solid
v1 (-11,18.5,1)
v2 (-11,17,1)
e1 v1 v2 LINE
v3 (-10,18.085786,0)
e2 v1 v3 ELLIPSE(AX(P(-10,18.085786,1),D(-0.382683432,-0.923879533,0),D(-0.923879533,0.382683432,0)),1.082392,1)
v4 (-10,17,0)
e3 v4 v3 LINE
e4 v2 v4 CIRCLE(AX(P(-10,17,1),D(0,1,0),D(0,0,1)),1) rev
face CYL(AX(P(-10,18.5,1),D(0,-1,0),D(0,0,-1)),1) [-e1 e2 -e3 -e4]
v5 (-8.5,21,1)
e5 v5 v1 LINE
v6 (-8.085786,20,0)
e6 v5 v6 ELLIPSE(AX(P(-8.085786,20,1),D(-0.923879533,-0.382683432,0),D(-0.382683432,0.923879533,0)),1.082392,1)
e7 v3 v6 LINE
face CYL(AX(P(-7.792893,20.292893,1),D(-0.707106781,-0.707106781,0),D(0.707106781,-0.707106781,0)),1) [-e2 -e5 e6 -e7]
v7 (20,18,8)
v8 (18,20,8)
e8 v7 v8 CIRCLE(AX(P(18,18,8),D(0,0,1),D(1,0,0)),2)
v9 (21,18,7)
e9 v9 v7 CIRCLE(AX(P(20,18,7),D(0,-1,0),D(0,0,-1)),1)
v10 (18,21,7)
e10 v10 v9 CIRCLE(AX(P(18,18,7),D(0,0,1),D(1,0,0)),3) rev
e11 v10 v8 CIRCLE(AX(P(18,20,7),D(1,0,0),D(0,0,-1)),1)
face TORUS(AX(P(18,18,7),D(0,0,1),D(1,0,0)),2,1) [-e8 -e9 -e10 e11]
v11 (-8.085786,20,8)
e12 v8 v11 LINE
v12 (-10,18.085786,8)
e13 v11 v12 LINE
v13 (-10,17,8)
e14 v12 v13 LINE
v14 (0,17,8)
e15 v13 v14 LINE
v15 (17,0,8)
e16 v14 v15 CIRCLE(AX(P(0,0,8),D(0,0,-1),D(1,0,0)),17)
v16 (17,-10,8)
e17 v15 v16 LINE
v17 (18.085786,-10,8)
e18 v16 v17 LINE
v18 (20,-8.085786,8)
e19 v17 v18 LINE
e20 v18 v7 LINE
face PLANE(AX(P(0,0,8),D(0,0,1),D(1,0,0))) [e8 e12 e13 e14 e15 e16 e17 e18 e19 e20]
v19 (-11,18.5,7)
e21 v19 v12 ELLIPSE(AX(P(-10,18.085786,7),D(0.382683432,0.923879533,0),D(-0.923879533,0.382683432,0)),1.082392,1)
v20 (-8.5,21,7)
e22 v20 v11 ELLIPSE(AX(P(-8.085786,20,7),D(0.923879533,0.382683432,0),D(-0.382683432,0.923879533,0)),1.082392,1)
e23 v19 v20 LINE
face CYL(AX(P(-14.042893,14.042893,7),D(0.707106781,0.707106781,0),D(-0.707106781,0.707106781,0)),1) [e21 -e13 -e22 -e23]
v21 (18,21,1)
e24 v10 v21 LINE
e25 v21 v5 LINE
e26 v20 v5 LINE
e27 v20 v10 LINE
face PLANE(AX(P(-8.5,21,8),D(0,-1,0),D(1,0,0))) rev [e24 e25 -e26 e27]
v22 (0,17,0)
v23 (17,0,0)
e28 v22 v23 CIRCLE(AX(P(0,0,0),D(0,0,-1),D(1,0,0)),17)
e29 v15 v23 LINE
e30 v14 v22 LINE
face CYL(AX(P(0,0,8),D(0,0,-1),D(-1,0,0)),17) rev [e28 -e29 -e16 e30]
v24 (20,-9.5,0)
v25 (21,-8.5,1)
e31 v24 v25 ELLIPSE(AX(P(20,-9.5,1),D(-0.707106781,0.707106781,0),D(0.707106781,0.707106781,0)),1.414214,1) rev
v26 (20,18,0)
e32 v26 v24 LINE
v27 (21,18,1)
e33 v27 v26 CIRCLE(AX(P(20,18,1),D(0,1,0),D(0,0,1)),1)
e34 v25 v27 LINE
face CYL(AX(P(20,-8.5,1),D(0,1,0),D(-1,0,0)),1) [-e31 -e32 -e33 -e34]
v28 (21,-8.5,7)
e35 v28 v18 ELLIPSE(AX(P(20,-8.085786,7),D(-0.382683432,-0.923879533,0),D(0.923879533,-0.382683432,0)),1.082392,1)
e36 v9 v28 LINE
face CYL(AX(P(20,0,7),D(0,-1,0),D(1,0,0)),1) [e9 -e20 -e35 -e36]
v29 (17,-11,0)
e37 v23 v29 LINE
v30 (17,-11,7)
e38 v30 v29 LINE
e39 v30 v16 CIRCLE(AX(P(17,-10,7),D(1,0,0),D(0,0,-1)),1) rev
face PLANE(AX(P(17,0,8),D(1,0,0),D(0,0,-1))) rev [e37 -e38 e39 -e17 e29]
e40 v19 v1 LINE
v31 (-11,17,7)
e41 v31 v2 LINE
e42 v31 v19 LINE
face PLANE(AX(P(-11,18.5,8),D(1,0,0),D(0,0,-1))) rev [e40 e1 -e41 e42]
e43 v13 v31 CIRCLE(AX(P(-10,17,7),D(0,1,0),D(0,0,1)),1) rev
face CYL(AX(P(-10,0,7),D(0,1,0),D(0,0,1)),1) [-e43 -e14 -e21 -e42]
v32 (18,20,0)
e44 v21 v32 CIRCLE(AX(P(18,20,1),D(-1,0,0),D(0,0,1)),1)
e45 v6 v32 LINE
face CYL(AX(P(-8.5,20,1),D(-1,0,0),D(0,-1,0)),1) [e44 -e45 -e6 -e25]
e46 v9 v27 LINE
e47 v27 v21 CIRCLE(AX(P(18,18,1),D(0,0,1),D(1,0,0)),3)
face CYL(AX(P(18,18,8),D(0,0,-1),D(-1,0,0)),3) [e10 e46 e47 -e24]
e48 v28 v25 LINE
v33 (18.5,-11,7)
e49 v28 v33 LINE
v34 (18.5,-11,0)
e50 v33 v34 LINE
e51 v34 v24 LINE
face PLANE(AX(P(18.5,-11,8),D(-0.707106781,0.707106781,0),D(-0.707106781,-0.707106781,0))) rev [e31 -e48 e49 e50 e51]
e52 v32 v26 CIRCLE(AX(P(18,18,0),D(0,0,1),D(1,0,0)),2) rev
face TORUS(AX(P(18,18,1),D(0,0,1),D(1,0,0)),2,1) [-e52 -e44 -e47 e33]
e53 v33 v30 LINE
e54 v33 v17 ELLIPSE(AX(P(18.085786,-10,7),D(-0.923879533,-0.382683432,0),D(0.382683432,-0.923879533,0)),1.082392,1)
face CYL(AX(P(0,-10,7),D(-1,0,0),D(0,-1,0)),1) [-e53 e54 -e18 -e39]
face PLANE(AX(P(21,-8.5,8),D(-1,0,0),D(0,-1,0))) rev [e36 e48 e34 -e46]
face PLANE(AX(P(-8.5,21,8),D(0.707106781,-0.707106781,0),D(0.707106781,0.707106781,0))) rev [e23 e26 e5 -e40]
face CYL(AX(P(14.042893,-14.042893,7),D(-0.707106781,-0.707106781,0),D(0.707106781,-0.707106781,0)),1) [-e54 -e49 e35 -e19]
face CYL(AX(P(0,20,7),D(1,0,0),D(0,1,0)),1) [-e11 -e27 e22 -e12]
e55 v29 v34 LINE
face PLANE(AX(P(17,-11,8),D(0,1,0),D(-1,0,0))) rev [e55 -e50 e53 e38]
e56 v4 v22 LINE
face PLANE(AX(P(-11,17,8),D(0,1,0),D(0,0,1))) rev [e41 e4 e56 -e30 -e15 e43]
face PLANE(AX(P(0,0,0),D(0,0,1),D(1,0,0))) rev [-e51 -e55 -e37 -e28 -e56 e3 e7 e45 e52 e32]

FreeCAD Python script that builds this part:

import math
import FreeCAD as App
import Part
import Sketcher

V = App.Vector
Q = App.Units.Quantity


def edges_at(feature, points):
    """Names of the edges that pass closest to the given points."""
    edges = feature.Shape.Edges
    near = lambda p: min(range(len(edges)), key=lambda i: edges[i].distToShape(Part.Vertex(*p))[0])
    return sorted({f"Edge{near(p) + 1}" for p in points})

doc = App.newDocument("Part")
body = doc.addObject("PartDesign::Body", "Body")

# Sketch on XY plane
sketch1 = body.newObject("Sketcher::SketchObject", "Sketch")
sketch1.AttachmentSupport = (doc.getObject("XY_Plane"), [""])
sketch1.MapMode = "FlatFace"
sketch1.addGeometry([
    Part.LineSegment(V(18, 21, 0), V(-8.5, 21, 0)),  # 0
    Part.LineSegment(V(-8.5, 21, 0), V(-11, 18.5, 0)),  # 1
    Part.LineSegment(V(-11, 18.5, 0), V(-11, 17, 0)),  # 2
    Part.LineSegment(V(-11, 17, 0), V(0, 17, 0)),  # 3
    Part.ArcOfCircle(Part.Circle(V(0, 0, 0), V(0, 0, 1), 17), math.radians(0), math.radians(90)),  # 4
    Part.LineSegment(V(17, 0, 0), V(17, -11, 0)),  # 5
    Part.LineSegment(V(17, -11, 0), V(18.5, -11, 0)),  # 6
    Part.LineSegment(V(18.5, -11, 0), V(21, -8.5, 0)),  # 7
    Part.LineSegment(V(21, -8.5, 0), V(21, 18, 0)),  # 8
    Part.ArcOfCircle(Part.Circle(V(18, 18, 0), V(0, 0, 1), 3), math.radians(0), math.radians(90)),  # 9
], False)
sketch1.addConstraint([
    Sketcher.Constraint("Coincident", 0, 2, 1, 1),
    Sketcher.Constraint("Coincident", 1, 2, 2, 1),
    Sketcher.Constraint("Coincident", 2, 2, 3, 1),
    Sketcher.Constraint("Tangent", 3, 2, 4, 2),
    Sketcher.Constraint("Tangent", 4, 1, 5, 1),
    Sketcher.Constraint("Coincident", 5, 2, 6, 1),
    Sketcher.Constraint("Coincident", 6, 2, 7, 1),
    Sketcher.Constraint("Coincident", 7, 2, 8, 1),
    Sketcher.Constraint("Tangent", 8, 2, 9, 1),
    Sketcher.Constraint("Tangent", 9, 2, 0, 1),
    Sketcher.Constraint("Horizontal", 0),
    Sketcher.Constraint("Vertical", 2),
    Sketcher.Constraint("Horizontal", 3),
    Sketcher.Constraint("Vertical", 5),
    Sketcher.Constraint("Horizontal", 6),
    Sketcher.Constraint("Vertical", 8),
    Sketcher.Constraint("Coincident", 4, 3, -1, 1),
    Sketcher.Constraint("Parallel", 1, 7),
    Sketcher.Constraint("Equal", 6, 2),
    Sketcher.Constraint("Equal", 3, 5),
    Sketcher.Constraint("Equal", 0, 8),
    Sketcher.Constraint("Radius", 4, 17.0),
    Sketcher.Constraint("Radius", 9, 3.0),
    Sketcher.Constraint("DistanceX", 3, 1, 3, 2, 11.0),
    Sketcher.Constraint("Angle", 1, Q("-135 deg")),
    Sketcher.Constraint("DistanceX", 0, 2, 0, 1, 26.5),
    Sketcher.Constraint("DistanceX", -1, 1, 9, 3, 18.0),
])
pad1 = body.newObject("PartDesign::Pad", "Pad")
pad1.Profile = sketch1
pad1.Length = 8
doc.recompute()

fillet = body.newObject("PartDesign::Fillet", "Fillet")
fillet.Base = (pad1, edges_at(pad1, [
    (21, 4.75, 0),
    (-11, 17.75, 0),
    (-9.75, 19.75, 0),
    (17.75, -11, 8),
    (19.75, -9.75, 8),
    (21, 4.75, 8),
    (20.121, 20.121, 8),
    (4.75, 21, 8),
    (-9.75, 19.75, 8),
    (-11, 17.75, 8),
    (4.75, 21, 0),
    (20.121, 20.121, 0),
]))
fillet.Radius = 1

doc.recompute()
